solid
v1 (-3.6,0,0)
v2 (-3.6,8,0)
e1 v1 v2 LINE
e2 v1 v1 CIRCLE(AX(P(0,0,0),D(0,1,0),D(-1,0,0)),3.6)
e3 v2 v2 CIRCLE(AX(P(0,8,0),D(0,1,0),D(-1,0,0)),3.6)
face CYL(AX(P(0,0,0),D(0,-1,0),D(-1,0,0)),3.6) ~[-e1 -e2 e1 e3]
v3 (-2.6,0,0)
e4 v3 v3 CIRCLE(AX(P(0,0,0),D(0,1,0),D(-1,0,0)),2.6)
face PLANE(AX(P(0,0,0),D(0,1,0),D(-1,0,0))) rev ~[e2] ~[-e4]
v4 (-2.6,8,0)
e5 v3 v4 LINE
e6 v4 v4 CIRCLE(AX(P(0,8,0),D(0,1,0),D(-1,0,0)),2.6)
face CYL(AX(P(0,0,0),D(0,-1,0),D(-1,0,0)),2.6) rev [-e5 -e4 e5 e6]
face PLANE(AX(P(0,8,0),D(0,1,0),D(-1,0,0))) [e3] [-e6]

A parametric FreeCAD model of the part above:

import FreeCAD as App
import Part
import Sketcher
from FreeCAD import Vector
Q = App.Units.Quantity

doc = App.newDocument("Part")
body = doc.addObject("PartDesign::Body", "Body")

# Sketch on XZ plane
sketch1 = body.newObject("Sketcher::SketchObject", "Sketch")
sketch1.AttachmentSupport = (doc.getObject("XZ_Plane"), [""])
sketch1.MapMode = "FlatFace"
sketch1.addGeometry([
    Part.Circle(Vector(0, 0, 0), Vector(0, 0, 1), 3.6),
    Part.Circle(Vector(0, 0, 0), Vector(0, 0, 1), 2.6),
], False)
sketch1.addConstraint([
    Sketcher.Constraint("Coincident", 0, 3, -1, 1),
    Sketcher.Constraint("Coincident", 1, 3, -1, 1),
    Sketcher.Constraint("Diameter", 0, Q("7.2 mm")),
    Sketcher.Constraint("Diameter", 1, Q("5.2 mm")),
])
pad1 = body.newObject("PartDesign::Pad", "Pad")
pad1.Profile = sketch1
pad1.Length = 8
pad1.Reversed = True

doc.recompute()
